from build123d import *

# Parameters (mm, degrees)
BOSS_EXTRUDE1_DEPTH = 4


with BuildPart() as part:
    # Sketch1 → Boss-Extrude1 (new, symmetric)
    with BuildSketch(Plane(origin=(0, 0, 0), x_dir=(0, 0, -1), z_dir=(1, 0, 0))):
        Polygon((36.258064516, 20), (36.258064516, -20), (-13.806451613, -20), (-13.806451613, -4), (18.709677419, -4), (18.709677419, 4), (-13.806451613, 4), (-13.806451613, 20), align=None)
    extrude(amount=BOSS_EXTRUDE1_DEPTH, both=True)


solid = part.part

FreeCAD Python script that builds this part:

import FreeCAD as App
import Part
import Sketcher

V = App.Vector


def add_polygon(sketch, points):
    """Adds a closed chain of lines whose ends are joined by coincident constraints."""
    first, n = sketch.GeometryCount, len(points)
    for a, b in zip(points, points[1:] + points[:1]):
        sketch.addGeometry(Part.LineSegment(App.Vector(*a, 0), App.Vector(*b, 0)), False)
    for i in range(n):
        sketch.addConstraint(Sketcher.Constraint("Coincident", first + i, 2, first + (i + 1) % n, 1))

doc = App.newDocument("Part")
body = doc.addObject("PartDesign::Body", "Body")

# Sketch on YZ plane
sketch1 = body.newObject("Sketcher::SketchObject", "Sketch")
sketch1.AttachmentSupport = (doc.getObject("YZ_Plane"), [""])
sketch1.MapMode = "FlatFace"
add_polygon(sketch1, [(-20, -36), (20, -36), (20, 14), (4, 14), (4, -19), (-4, -19), (-4, 14), (-20, 14)])  # lines 0-7
sketch1.addConstraint(Sketcher.Constraint("Horizontal", 0))
sketch1.addConstraint(Sketcher.Constraint("Vertical", 1))
sketch1.addConstraint(Sketcher.Constraint("Horizontal", 2))
sketch1.addConstraint(Sketcher.Constraint("Vertical", 3))
sketch1.addConstraint(Sketcher.Constraint("Horizontal", 4))
sketch1.addConstraint(Sketcher.Constraint("Vertical", 5))
sketch1.addConstraint(Sketcher.Constraint("Horizontal", 6))
sketch1.addConstraint(Sketcher.Constraint("Vertical", 7))
sketch1.addConstraint(Sketcher.Constraint("Symmetric", 2, 2, 5, 2, -2))
sketch1.addConstraint(Sketcher.Constraint("Equal", 2, 6))
sketch1.addConstraint(Sketcher.Constraint("DistanceX", 0, 1, 0, 2, 40.0))
sketch1.addConstraint(Sketcher.Constraint("DistanceX", 2, 2, 2, 1, 16.0))
sketch1.addConstraint(Sketcher.Constraint("DistanceY", 3, 2, 3, 1, 32.516129))
sketch1.addConstraint(Sketcher.Constraint("DistanceY", 1, 1, 1, 2, 50.064516))
sketch1.addConstraint(Sketcher.Constraint("DistanceY", -1, 1, 1, 2, 13.806452))
pad1 = body.newObject("PartDesign::Pad", "Pad")
pad1.Profile = sketch1
pad1.Length = 8
pad1.Midplane = True

doc.recompute()
